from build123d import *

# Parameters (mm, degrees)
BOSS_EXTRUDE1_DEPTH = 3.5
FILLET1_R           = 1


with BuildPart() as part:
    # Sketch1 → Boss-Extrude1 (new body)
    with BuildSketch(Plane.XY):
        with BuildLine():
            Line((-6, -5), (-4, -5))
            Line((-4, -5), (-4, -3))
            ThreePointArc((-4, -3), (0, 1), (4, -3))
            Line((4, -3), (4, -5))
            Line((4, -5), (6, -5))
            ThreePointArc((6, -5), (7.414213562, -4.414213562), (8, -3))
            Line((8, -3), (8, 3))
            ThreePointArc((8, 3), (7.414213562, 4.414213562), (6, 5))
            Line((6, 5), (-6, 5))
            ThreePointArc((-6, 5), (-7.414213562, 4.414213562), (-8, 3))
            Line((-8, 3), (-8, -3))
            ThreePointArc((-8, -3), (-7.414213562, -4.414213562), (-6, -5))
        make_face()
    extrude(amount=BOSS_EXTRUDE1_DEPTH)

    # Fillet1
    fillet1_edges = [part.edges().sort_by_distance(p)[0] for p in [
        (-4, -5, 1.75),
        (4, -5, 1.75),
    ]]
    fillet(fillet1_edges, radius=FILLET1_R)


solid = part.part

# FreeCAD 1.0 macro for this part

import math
import FreeCAD as App
import Part
import Sketcher
Q = App.Units.Quantity


def edges_at(feature, points):
    """Names of the edges that pass closest to the given points."""
    edges = feature.Shape.Edges
    near = lambda p: min(range(len(edges)), key=lambda i: edges[i].distToShape(Part.Vertex(*p))[0])
    return sorted({f"Edge{near(p) + 1}" for p in points})

doc = App.newDocument("Part")
params = doc.addObject("Spreadsheet::Sheet", "Params")
for row, (alias, value) in enumerate([
    ("sketch1_radius", "4 mm"),
    ("sketch1_radius2", "2 mm"),
    ("sketch1_height", "6 mm"),
    ("pad1_length", "3.5 mm"),
    ("fillet_radius", "1 mm"),
], start=1):
    params.set(f"A{row}", alias)
    params.set(f"B{row}", "=" + value)
    params.setAlias(f"B{row}", alias)

body = doc.addObject("PartDesign::Body", "Body")

sketch1 = doc.addObject("Sketcher::SketchObject", "Sketch")
body.addObject(sketch1)
sketch1.AttachmentSupport = (doc.XY_Plane, [""])
sketch1.MapMode = "FlatFace"
sketch1.addGeometry(Part.LineSegment(App.Vector(-6, -5, 0), App.Vector(-4, -5, 0)), False)
sketch1.addGeometry(Part.LineSegment(App.Vector(-4, -5, 0), App.Vector(-4, -3, 0)), False)
sketch1.addGeometry(Part.ArcOfCircle(Part.Circle(App.Vector(0, -3, 0), App.Vector(0, 0, 1), 4), math.radians(0), math.radians(180)), False)
sketch1.addGeometry(Part.LineSegment(App.Vector(4, -3, 0), App.Vector(4, -5, 0)), False)
sketch1.addGeometry(Part.LineSegment(App.Vector(4, -5, 0), App.Vector(6, -5, 0)), False)
sketch1.addGeometry(Part.ArcOfCircle(Part.Circle(App.Vector(6, -3, 0), App.Vector(0, 0, 1), 2), math.radians(-90), math.radians(0)), False)
sketch1.addGeometry(Part.LineSegment(App.Vector(8, -3, 0), App.Vector(8, 3, 0)), False)
sketch1.addGeometry(Part.ArcOfCircle(Part.Circle(App.Vector(6, 3, 0), App.Vector(0, 0, 1), 2), math.radians(0), math.radians(90)), False)
sketch1.addGeometry(Part.LineSegment(App.Vector(6, 5, 0), App.Vector(-6, 5, 0)), False)
sketch1.addGeometry(Part.ArcOfCircle(Part.Circle(App.Vector(-6, 3, 0), App.Vector(0, 0, 1), 2), math.radians(90), math.radians(180)), False)
sketch1.addGeometry(Part.LineSegment(App.Vector(-8, 3, 0), App.Vector(-8, -3, 0)), False)
sketch1.addGeometry(Part.ArcOfCircle(Part.Circle(App.Vector(-6, -3, 0), App.Vector(0, 0, 1), 2), math.radians(-180), math.radians(-90)), False)
sketch1.addConstraint(Sketcher.Constraint("Coincident", 0, 2, 1, 1))
sketch1.addConstraint(Sketcher.Constraint("Tangent", 1, 2, 2, 2))
sketch1.addConstraint(Sketcher.Constraint("Tangent", 2, 1, 3, 1))
sketch1.addConstraint(Sketcher.Constraint("Coincident", 3, 2, 4, 1))
sketch1.addConstraint(Sketcher.Constraint("Tangent", 4, 2, 5, 1))
sketch1.addConstraint(Sketcher.Constraint("Tangent", 5, 2, 6, 1))
sketch1.addConstraint(Sketcher.Constraint("Tangent", 6, 2, 7, 1))
sketch1.addConstraint(Sketcher.Constraint("Tangent", 7, 2, 8, 1))
sketch1.addConstraint(Sketcher.Constraint("Tangent", 8, 2, 9, 1))
sketch1.addConstraint(Sketcher.Constraint("Tangent", 9, 2, 10, 1))
sketch1.addConstraint(Sketcher.Constraint("Tangent", 10, 2, 11, 1))
sketch1.addConstraint(Sketcher.Constraint("Tangent", 11, 2, 0, 1))
sketch1.addConstraint(Sketcher.Constraint("Horizontal", 0))
sketch1.addConstraint(Sketcher.Constraint("Vertical", 1))
sketch1.addConstraint(Sketcher.Constraint("Vertical", 3))
sketch1.addConstraint(Sketcher.Constraint("Horizontal", 4))
sketch1.addConstraint(Sketcher.Constraint("Vertical", 6))
sketch1.addConstraint(Sketcher.Constraint("Horizontal", 8))
sketch1.addConstraint(Sketcher.Constraint("Vertical", 10))
sketch1.addConstraint(Sketcher.Constraint("Equal", 5, 7))
sketch1.addConstraint(Sketcher.Constraint("Equal", 7, 9))
sketch1.addConstraint(Sketcher.Constraint("Equal", 9, 11))
sketch1.addConstraint(Sketcher.Constraint("Symmetric", 5, 3, 9, 3, -1, 1))
sketch1.addConstraint(Sketcher.Constraint("Symmetric", 0, 2, 3, 2, -2))
sketch1.addConstraint(Sketcher.Constraint("Horizontal", 2, 3, 5, 3))
sketch1.addConstraint(Sketcher.Constraint("Equal", 4, 1))
sketch1.addConstraint(Sketcher.Constraint("Radius", 2, Q("4 mm")))
sketch1.addConstraint(Sketcher.Constraint("Radius", 5, Q("2 mm")))
sketch1.addConstraint(Sketcher.Constraint("DistanceY", 6, 1, 6, 2, Q("6 mm")))
sketch1.setExpression("Constraints[26]", "Params.sketch1_radius")
sketch1.setExpression("Constraints[27]", "Params.sketch1_radius2")
sketch1.setExpression("Constraints[28]", "Params.sketch1_height")
pad1 = doc.addObject("PartDesign::Pad", "Pad")
body.addObject(pad1)
pad1.Profile = sketch1
pad1.setExpression("Length", "Params.pad1_length")
doc.recompute()

fillet = doc.addObject("PartDesign::Fillet", "Fillet")
body.addObject(fillet)
fillet.Base = (pad1, edges_at(pad1, [(-4, -5, 1.75), (4, -5, 1.75)]))
fillet.setExpression("Radius", "Params.fillet_radius")

doc.recompute()
